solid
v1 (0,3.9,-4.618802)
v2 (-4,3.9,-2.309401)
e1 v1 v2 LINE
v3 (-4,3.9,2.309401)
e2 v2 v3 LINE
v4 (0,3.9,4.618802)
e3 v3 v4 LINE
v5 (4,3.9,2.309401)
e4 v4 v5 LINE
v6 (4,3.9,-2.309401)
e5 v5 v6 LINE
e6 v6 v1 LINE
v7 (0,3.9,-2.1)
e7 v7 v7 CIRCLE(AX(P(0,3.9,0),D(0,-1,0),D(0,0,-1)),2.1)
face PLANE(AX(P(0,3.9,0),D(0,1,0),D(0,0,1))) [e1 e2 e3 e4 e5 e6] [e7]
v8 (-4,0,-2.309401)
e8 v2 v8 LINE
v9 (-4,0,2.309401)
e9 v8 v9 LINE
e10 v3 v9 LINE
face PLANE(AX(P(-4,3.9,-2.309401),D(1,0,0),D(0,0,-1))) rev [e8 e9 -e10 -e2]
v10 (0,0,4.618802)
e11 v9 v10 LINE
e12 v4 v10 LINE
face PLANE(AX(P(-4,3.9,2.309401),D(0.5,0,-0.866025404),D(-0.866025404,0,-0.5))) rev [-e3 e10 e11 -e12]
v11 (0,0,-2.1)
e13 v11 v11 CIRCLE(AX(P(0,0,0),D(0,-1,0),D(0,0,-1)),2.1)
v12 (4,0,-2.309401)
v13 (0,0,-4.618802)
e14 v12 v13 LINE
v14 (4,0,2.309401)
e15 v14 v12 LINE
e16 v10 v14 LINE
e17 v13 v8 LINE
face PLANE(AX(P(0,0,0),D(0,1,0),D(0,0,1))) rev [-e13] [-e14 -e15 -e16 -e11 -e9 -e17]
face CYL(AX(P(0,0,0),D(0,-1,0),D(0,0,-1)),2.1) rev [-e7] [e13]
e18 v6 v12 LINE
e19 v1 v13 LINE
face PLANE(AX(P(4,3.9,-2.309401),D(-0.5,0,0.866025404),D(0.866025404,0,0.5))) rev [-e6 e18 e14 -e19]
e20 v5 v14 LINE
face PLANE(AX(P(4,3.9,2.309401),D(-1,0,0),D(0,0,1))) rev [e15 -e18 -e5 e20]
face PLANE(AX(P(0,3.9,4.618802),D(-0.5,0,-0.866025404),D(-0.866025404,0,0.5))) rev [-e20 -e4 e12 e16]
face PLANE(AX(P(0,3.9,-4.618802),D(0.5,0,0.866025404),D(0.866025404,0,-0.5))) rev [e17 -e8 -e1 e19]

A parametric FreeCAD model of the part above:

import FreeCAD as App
import Part
import Sketcher
Q = App.Units.Quantity


def add_polygon(sketch, points):
    """Adds a closed chain of lines whose ends are joined by coincident constraints."""
    first, n = sketch.GeometryCount, len(points)
    for a, b in zip(points, points[1:] + points[:1]):
        sketch.addGeometry(Part.LineSegment(App.Vector(*a, 0), App.Vector(*b, 0)), False)
    for i in range(n):
        sketch.addConstraint(Sketcher.Constraint("Coincident", first + i, 2, first + (i + 1) % n, 1))

doc = App.newDocument("Part")
params = doc.addObject("Spreadsheet::Sheet", "Params")
for row, (alias, value) in enumerate([
    ("pad1_length", "3.9 mm"),
    ("sketch2_diameter", "4.2 mm"),
    ("hole_diameter", "4.2 mm"),
], start=1):
    params.set(f"A{row}", alias)
    params.set(f"B{row}", "=" + value)
    params.setAlias(f"B{row}", alias)

body = doc.addObject("PartDesign::Body", "Body")

# Sketch on XZ plane
sketch1 = doc.addObject("Sketcher::SketchObject", "Sketch")
body.addObject(sketch1)
sketch1.AttachmentSupport = (doc.XZ_Plane, [""])
sketch1.MapMode = "FlatFace"
add_polygon(sketch1, [(4, 2.3), (4, -2.3), (0, -4.6), (-4, -2.3), (-4, 2.3), (0, 4.6)])  # lines 0-5
sketch1.addConstraint([
    Sketcher.Constraint("Vertical", 0),
    Sketcher.Constraint("Vertical", 3),
    Sketcher.Constraint("Symmetric", 0, 2, 3, 2, -1, 1),
    Sketcher.Constraint("Symmetric", 1, 2, 4, 2, -1, 1),
    Sketcher.Constraint("PointOnObject", 1, 2, -2),
    Sketcher.Constraint("Parallel", 2, 5),
    Sketcher.Constraint("Horizontal", 0, 2, 2, 2),
    Sketcher.Constraint("Angle", 1, Q("-150 deg")),
    Sketcher.Constraint("DistanceX", -1, 1, 0, 2, Q("4 mm")),
    Sketcher.Constraint("DistanceY", 0, 2, -1, 1, Q("2.309401 mm")),
])
pad1 = doc.addObject("PartDesign::Pad", "Pad")
body.addObject(pad1)
pad1.Profile = sketch1
pad1.setExpression("Length", "Params.pad1_length")
pad1.Reversed = True

# Sketch on XZ plane
sketch2 = doc.addObject("Sketcher::SketchObject", "Sketch001")
body.addObject(sketch2)
sketch2.AttachmentSupport = (doc.XZ_Plane, [""])
sketch2.MapMode = "FlatFace"
sketch2.addGeometry(Part.Circle(App.Vector(0, 0, 0), App.Vector(0, 0, 1), 2.1), False)
sketch2.addConstraint([
    Sketcher.Constraint("Coincident", 0, 3, -1, 1),
    Sketcher.Constraint("Diameter", 0, Q("4.2 mm")),
])
sketch2.setExpression("Constraints[1]", "Params.sketch2_diameter")
doc.recompute()
hole = doc.addObject("PartDesign::Hole", "Hole")
body.addObject(hole)
hole.Profile = sketch2
hole.ThreadType = "None"
hole.setExpression("Diameter", "Params.hole_diameter")
hole.DepthType = "ThroughAll"

doc.recompute()
